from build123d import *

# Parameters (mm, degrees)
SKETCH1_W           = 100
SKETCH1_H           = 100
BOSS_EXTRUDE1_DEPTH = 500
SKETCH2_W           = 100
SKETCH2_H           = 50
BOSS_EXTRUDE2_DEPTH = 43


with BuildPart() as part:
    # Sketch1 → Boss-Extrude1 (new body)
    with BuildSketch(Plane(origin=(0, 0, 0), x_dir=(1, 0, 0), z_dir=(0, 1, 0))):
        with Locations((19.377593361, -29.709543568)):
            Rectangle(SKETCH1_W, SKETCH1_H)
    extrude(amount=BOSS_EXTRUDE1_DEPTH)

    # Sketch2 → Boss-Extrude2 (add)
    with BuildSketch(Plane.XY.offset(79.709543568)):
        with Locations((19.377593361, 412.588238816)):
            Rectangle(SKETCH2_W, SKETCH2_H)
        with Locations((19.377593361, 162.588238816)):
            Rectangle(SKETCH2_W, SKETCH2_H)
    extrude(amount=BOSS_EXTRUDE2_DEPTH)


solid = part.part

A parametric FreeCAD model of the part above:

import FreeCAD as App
import Part
import Sketcher
from FreeCAD import Vector
Q = App.Units.Quantity

doc = App.newDocument("Part")
params = doc.addObject("Spreadsheet::Sheet", "Params")
for row, (alias, value) in enumerate([
    ("sketch1_width", "100 mm"),
    ("pad1_length", "500 mm"),
    ("sketch2_width", "100 mm"),
    ("sketch2_height", "50 mm"),
    ("pad2_length", "43 mm"),
], start=1):
    params.set(f"A{row}", alias)
    params.set(f"B{row}", "=" + value)
    params.setAlias(f"B{row}", alias)

body = doc.addObject("PartDesign::Body", "Body")

# Sketch on XZ plane
sketch1 = doc.addObject("Sketcher::SketchObject", "Sketch")
body.addObject(sketch1)
sketch1.AttachmentSupport = (doc.XZ_Plane, [""])
sketch1.MapMode = "FlatFace"
sketch1.addGeometry(Part.LineSegment(Vector(-30.622407, -20.290456, 0), Vector(-30.622407, 79.709544, 0)), False)
sketch1.addGeometry(Part.LineSegment(Vector(-30.622407, 79.709544, 0), Vector(69.377593, 79.709544, 0)), False)
sketch1.addGeometry(Part.LineSegment(Vector(69.377593, 79.709544, 0), Vector(69.377593, -20.290456, 0)), False)
sketch1.addGeometry(Part.LineSegment(Vector(69.377593, -20.290456, 0), Vector(-30.622407, -20.290456, 0)), False)
sketch1.addConstraint(Sketcher.Constraint("Coincident", 0, 2, 1, 1))
sketch1.addConstraint(Sketcher.Constraint("Coincident", 1, 2, 2, 1))
sketch1.addConstraint(Sketcher.Constraint("Coincident", 2, 2, 3, 1))
sketch1.addConstraint(Sketcher.Constraint("Coincident", 3, 2, 0, 1))
sketch1.addConstraint(Sketcher.Constraint("Vertical", 0))
sketch1.addConstraint(Sketcher.Constraint("Horizontal", 1))
sketch1.addConstraint(Sketcher.Constraint("Vertical", 2))
sketch1.addConstraint(Sketcher.Constraint("Horizontal", 3))
sketch1.addConstraint(Sketcher.Constraint("Equal", 3, 0))
sketch1.addConstraint(Sketcher.Constraint("DistanceX", 1, 1, 1, 2, Q("100 mm")))
sketch1.addConstraint(Sketcher.Constraint("DistanceX", 0, 2, -1, 1, Q("30.622407 mm")))
sketch1.addConstraint(Sketcher.Constraint("DistanceY", -1, 1, 0, 2, Q("79.709544 mm")))
sketch1.setExpression("Constraints[9]", "Params.sketch1_width")
pad1 = doc.addObject("PartDesign::Pad", "Pad")
body.addObject(pad1)
pad1.Profile = sketch1
pad1.setExpression("Length", "Params.pad1_length")
pad1.Reversed = True

# Sketch on XY plane
sketch2 = doc.addObject("Sketcher::SketchObject", "Sketch001")
body.addObject(sketch2)
sketch2.AttachmentSupport = (doc.XY_Plane, [""])
sketch2.MapMode = "FlatFace"
sketch2.AttachmentOffset = App.Placement(Vector(0, 0, 79.709544), App.Rotation())
sketch2.addGeometry(Part.LineSegment(Vector(-30.622407, 437.588239, 0), Vector(-30.622407, 387.588239, 0)), False)
sketch2.addGeometry(Part.LineSegment(Vector(-30.622407, 387.588239, 0), Vector(69.377593, 387.588239, 0)), False)
sketch2.addGeometry(Part.LineSegment(Vector(69.377593, 387.588239, 0), Vector(69.377593, 437.588239, 0)), False)
sketch2.addGeometry(Part.LineSegment(Vector(69.377593, 437.588239, 0), Vector(-30.622407, 437.588239, 0)), False)
sketch2.addGeometry(Part.LineSegment(Vector(-30.622407, 187.588239, 0), Vector(-30.622407, 137.588239, 0)), False)
sketch2.addGeometry(Part.LineSegment(Vector(-30.622407, 137.588239, 0), Vector(69.377593, 137.588239, 0)), False)
sketch2.addGeometry(Part.LineSegment(Vector(69.377593, 137.588239, 0), Vector(69.377593, 187.588239, 0)), False)
sketch2.addGeometry(Part.LineSegment(Vector(69.377593, 187.588239, 0), Vector(-30.622407, 187.588239, 0)), False)
sketch2.addConstraint(Sketcher.Constraint("Coincident", 0, 2, 1, 1))
sketch2.addConstraint(Sketcher.Constraint("Coincident", 1, 2, 2, 1))
sketch2.addConstraint(Sketcher.Constraint("Coincident", 2, 2, 3, 1))
sketch2.addConstraint(Sketcher.Constraint("Coincident", 3, 2, 0, 1))
sketch2.addConstraint(Sketcher.Constraint("Coincident", 4, 2, 5, 1))
sketch2.addConstraint(Sketcher.Constraint("Coincident", 5, 2, 6, 1))
sketch2.addConstraint(Sketcher.Constraint("Coincident", 6, 2, 7, 1))
sketch2.addConstraint(Sketcher.Constraint("Coincident", 7, 2, 4, 1))
sketch2.addConstraint(Sketcher.Constraint("Vertical", 0))
sketch2.addConstraint(Sketcher.Constraint("Horizontal", 1))
sketch2.addConstraint(Sketcher.Constraint("Vertical", 2))
sketch2.addConstraint(Sketcher.Constraint("Horizontal", 3))
sketch2.addConstraint(Sketcher.Constraint("Vertical", 4))
sketch2.addConstraint(Sketcher.Constraint("Horizontal", 5))
sketch2.addConstraint(Sketcher.Constraint("Vertical", 6))
sketch2.addConstraint(Sketcher.Constraint("Horizontal", 7))
sketch2.addConstraint(Sketcher.Constraint("Vertical", 3, 2, 4, 2))
sketch2.addConstraint(Sketcher.Constraint("Vertical", 2, 2, 5, 2))
sketch2.addConstraint(Sketcher.Constraint("Equal", 2, 4))
sketch2.addConstraint(Sketcher.Constraint("DistanceX", 1, 1, 1, 2, Q("100 mm")))
sketch2.addConstraint(Sketcher.Constraint("DistanceY", 0, 2, 0, 1, Q("50 mm")))
sketch2.addConstraint(Sketcher.Constraint("DistanceY", 4, 2, 0, 2, Q("250 mm")))
sketch2.addConstraint(Sketcher.Constraint("DistanceY", -1, 1, 0, 2, Q("387.588239 mm")))
sketch2.addConstraint(Sketcher.Constraint("DistanceX", 0, 2, -1, 1, Q("30.622407 mm")))
sketch2.setExpression("Constraints[19]", "Params.sketch2_width")
sketch2.setExpression("Constraints[20]", "Params.sketch2_height")
pad2 = doc.addObject("PartDesign::Pad", "Pad001")
body.addObject(pad2)
pad2.Profile = sketch2
pad2.setExpression("Length", "Params.pad2_length")

doc.recompute()
